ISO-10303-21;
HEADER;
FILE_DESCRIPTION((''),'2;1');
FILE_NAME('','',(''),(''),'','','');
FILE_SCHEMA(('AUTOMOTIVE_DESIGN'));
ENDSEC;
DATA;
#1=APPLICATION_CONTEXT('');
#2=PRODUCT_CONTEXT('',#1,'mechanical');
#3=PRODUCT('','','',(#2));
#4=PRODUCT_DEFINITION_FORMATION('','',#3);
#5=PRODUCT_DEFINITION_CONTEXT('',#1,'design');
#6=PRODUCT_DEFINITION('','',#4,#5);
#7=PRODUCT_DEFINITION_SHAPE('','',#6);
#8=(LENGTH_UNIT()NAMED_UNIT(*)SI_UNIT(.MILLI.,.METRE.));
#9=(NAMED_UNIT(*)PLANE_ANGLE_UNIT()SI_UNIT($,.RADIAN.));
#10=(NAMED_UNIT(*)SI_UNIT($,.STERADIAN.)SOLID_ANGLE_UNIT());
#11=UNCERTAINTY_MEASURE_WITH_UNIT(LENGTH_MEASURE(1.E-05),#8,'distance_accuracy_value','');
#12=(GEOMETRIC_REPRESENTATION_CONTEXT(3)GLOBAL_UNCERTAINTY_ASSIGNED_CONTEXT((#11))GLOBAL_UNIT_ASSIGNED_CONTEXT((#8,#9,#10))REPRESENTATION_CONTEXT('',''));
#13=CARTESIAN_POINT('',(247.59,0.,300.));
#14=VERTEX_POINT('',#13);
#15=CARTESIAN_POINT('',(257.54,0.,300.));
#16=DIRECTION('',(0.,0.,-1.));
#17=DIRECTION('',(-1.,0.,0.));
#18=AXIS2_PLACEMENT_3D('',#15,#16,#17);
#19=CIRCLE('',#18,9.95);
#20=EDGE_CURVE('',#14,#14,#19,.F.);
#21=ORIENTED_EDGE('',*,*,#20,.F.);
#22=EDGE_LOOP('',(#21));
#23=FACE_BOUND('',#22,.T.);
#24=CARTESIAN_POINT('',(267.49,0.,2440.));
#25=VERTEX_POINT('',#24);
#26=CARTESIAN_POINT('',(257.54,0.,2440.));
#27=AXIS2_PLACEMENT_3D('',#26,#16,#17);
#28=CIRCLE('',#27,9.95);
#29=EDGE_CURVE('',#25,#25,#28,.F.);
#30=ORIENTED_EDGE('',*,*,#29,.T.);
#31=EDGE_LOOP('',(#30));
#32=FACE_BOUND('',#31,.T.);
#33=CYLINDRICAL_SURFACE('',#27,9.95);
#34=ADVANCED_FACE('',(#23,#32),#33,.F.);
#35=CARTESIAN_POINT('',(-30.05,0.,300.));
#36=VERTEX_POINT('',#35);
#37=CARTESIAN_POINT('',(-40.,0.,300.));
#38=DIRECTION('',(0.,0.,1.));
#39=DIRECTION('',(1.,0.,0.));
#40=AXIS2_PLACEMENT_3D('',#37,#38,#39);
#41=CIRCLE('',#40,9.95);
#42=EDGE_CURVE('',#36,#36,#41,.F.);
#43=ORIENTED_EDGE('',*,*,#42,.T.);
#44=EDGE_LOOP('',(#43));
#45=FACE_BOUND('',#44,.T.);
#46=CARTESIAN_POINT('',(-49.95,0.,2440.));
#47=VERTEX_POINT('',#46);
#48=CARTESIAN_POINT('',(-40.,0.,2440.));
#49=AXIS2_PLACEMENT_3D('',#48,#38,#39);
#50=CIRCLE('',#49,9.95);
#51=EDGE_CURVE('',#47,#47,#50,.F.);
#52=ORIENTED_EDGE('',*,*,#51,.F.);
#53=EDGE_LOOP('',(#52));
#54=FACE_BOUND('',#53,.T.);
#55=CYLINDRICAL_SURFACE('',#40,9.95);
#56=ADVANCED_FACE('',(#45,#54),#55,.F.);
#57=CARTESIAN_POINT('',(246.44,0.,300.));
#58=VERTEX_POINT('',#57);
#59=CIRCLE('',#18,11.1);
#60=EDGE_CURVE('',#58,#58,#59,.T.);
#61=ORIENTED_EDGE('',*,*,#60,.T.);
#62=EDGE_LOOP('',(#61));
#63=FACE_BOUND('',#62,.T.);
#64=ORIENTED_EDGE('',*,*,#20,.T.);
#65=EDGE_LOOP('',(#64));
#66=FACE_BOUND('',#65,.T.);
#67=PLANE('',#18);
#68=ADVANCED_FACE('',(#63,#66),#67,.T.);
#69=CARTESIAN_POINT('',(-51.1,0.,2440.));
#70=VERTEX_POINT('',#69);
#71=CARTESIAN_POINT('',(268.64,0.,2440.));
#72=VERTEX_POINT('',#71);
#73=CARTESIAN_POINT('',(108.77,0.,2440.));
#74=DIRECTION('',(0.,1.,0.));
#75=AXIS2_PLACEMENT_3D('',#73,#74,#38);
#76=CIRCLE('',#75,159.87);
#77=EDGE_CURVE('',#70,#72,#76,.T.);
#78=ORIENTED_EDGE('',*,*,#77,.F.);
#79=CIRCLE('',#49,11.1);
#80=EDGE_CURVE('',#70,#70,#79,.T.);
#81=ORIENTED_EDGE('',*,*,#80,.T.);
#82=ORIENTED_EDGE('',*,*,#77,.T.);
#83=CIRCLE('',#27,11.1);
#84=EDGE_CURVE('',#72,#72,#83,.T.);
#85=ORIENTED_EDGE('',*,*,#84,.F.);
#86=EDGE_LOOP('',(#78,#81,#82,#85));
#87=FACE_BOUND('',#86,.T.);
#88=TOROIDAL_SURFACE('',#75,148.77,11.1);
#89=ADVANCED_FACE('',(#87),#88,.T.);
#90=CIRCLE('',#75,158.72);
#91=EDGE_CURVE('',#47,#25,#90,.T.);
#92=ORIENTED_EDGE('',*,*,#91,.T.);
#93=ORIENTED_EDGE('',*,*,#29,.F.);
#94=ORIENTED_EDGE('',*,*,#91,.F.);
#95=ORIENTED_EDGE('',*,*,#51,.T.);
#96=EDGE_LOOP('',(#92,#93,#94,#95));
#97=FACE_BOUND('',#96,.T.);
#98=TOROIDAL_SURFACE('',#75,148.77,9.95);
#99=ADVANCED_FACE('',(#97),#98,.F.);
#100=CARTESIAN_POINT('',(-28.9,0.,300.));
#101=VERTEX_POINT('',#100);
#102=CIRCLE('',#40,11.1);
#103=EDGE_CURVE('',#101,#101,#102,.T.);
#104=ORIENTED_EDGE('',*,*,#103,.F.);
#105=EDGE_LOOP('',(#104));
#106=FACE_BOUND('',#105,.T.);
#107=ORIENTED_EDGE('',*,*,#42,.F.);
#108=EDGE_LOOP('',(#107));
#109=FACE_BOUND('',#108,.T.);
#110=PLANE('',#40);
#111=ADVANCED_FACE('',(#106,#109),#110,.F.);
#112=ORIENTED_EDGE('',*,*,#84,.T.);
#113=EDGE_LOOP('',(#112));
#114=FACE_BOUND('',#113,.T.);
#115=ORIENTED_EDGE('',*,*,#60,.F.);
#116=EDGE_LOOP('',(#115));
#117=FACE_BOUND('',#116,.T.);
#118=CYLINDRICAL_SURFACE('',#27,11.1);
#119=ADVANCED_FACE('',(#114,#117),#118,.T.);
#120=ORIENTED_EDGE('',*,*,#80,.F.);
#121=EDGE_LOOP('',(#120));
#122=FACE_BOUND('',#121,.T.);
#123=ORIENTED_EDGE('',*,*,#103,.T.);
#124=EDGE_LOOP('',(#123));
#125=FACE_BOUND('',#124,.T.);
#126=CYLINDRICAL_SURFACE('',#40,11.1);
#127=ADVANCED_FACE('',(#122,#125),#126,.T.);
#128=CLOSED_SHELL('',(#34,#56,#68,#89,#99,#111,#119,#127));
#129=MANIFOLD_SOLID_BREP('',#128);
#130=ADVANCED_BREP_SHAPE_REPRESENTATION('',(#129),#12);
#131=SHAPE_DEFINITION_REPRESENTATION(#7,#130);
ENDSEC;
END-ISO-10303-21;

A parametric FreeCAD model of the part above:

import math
import FreeCAD as App
import Part
import Sketcher

V = App.Vector

doc = App.newDocument("Part")
body = doc.addObject("PartDesign::Body", "Body")

# Sketch on XY plane
sketch1 = doc.addObject("Sketcher::SketchObject", "Sketch")
body.addObject(sketch1)
sketch1.AttachmentSupport = (doc.XY_Plane, [""])
sketch1.MapMode = "FlatFace"
sketch1.AttachmentOffset = App.Placement(V(0, 0, 300), App.Rotation())
sketch1.addGeometry(Part.Circle(V(257.54, 0, 0), V(0, 0, 1), 11.1), False)
sketch1.addGeometry(Part.Circle(V(257.54, 0, 0), V(0, 0, 1), 9.95), False)
sketch1.addConstraint(Sketcher.Constraint("Coincident", 1, 3, 0, 3))
sketch1.addConstraint(Sketcher.Constraint("PointOnObject", 0, 3, -1))
sketch1.addConstraint(Sketcher.Constraint("Diameter", 0, 22.2))
sketch1.addConstraint(Sketcher.Constraint("Diameter", 1, 19.9))
sketch1.addConstraint(Sketcher.Constraint("DistanceX", -1, 1, 0, 3, 257.54))

# Sketch on XZ plane
sketch2 = doc.addObject("Sketcher::SketchObject", "Sketch001")
body.addObject(sketch2)
sketch2.AttachmentSupport = (doc.XZ_Plane, [""])
sketch2.MapMode = "FlatFace"
sketch2.addGeometry(Part.LineSegment(V(257.54, 300, 0), V(257.54, 2440, 0)), False)
sketch2.addGeometry(Part.ArcOfCircle(Part.Circle(V(108.77, 2440, 0), V(0, 0, 1), 148.77), math.radians(0), math.radians(180)), False)
sketch2.addGeometry(Part.LineSegment(V(-40, 2440, 0), V(-40, 300, 0)), False)
sketch2.addConstraint(Sketcher.Constraint("Tangent", 0, 2, 1, 1))
sketch2.addConstraint(Sketcher.Constraint("Tangent", 1, 2, 2, 1))
sketch2.addConstraint(Sketcher.Constraint("Vertical", 0))
sketch2.addConstraint(Sketcher.Constraint("Vertical", 2))
sketch2.addConstraint(Sketcher.Constraint("Horizontal", 0, 1, 2, 2))
sketch2.addConstraint(Sketcher.Constraint("DistanceY", 0, 1, 0, 2, 2140.0))
sketch2.addConstraint(Sketcher.Constraint("Radius", 1, 148.77))
sketch2.addConstraint(Sketcher.Constraint("DistanceY", -1, 1, 1, 3, 2440.0))
sketch2.addConstraint(Sketcher.Constraint("DistanceX", 1, 2, -1, 1, 40.0))
doc.recompute()

additivepipe = doc.addObject("PartDesign::AdditivePipe", "AdditivePipe")
body.addObject(additivepipe)
additivepipe.Profile = sketch1
additivepipe.Spine = (sketch2, ["Edge1", "Edge2", "Edge3"])

doc.recompute()
